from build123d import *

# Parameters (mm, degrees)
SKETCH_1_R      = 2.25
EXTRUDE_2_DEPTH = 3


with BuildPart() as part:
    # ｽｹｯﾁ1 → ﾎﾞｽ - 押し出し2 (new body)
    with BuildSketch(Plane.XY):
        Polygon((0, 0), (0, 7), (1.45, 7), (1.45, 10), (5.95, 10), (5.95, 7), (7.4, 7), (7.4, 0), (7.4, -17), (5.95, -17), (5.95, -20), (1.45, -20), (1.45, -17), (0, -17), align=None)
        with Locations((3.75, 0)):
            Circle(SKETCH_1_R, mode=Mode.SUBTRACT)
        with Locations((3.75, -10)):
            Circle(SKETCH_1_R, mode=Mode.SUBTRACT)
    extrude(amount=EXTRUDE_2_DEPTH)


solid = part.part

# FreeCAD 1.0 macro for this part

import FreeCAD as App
import Part
import Sketcher

V = App.Vector


def add_polygon(sketch, points):
    """Adds a closed chain of lines whose ends are joined by coincident constraints."""
    first, n = sketch.GeometryCount, len(points)
    for a, b in zip(points, points[1:] + points[:1]):
        sketch.addGeometry(Part.LineSegment(App.Vector(*a, 0), App.Vector(*b, 0)), False)
    for i in range(n):
        sketch.addConstraint(Sketcher.Constraint("Coincident", first + i, 2, first + (i + 1) % n, 1))

doc = App.newDocument("Part")
body = doc.addObject("PartDesign::Body", "Body")

sketch1 = body.newObject("Sketcher::SketchObject", "Sketch")
sketch1.AttachmentSupport = (doc.getObject("XY_Plane"), [""])
sketch1.MapMode = "FlatFace"
add_polygon(sketch1, [(0, 7), (0, -17), (1.45, -17), (1.45, -20), (5.95, -20), (5.95, -17), (7.4, -17), (7.4, 7), (5.95, 7), (5.95, 10), (1.45, 10), (1.45, 7)])
sketch1.addGeometry(Part.Circle(V(3.75, -10, 0), V(0, 0, 1), 2.25), False)
sketch1.addGeometry(Part.Circle(V(3.75, 0, 0), V(0, 0, 1), 2.25), False)
sketch1.addConstraint([
    Sketcher.Constraint("Vertical", 0),
    Sketcher.Constraint("Horizontal", 1),
    Sketcher.Constraint("Vertical", 2),
    Sketcher.Constraint("Horizontal", 3),
    Sketcher.Constraint("Vertical", 4),
    Sketcher.Constraint("Horizontal", 5),
    Sketcher.Constraint("Vertical", 6),
    Sketcher.Constraint("Horizontal", 7),
    Sketcher.Constraint("Vertical", 8),
    Sketcher.Constraint("Horizontal", 9),
    Sketcher.Constraint("Vertical", 10),
    Sketcher.Constraint("Horizontal", 11),
    Sketcher.Constraint("Equal", 12, 13),
    Sketcher.Constraint("PointOnObject", 13, 3, -1),
    Sketcher.Constraint("PointOnObject", 0, 2, -2),
    Sketcher.Constraint("Horizontal", 1, 2, 4, 2),
    Sketcher.Constraint("Horizontal", 7, 2, 10, 2),
    Sketcher.Constraint("Vertical", 12, 3, 13, 3),
    Sketcher.Constraint("Vertical", 4, 2, 7, 2),
    Sketcher.Constraint("Vertical", 2, 2, 9, 2),
    Sketcher.Constraint("Equal", 1, 5),
    Sketcher.Constraint("Equal", 4, 8),
    Sketcher.Constraint("Diameter", 12, 4.5),
    Sketcher.Constraint("DistanceY", 0, 2, 0, 1, 24.0),
    Sketcher.Constraint("DistanceY", 2, 2, 2, 1, 3.0),
    Sketcher.Constraint("DistanceX", 3, 1, 3, 2, 4.5),
    Sketcher.Constraint("DistanceY", 12, 3, -1, 1, 10.0),
    Sketcher.Constraint("DistanceY", 0, 2, -1, 1, 17.0),
    Sketcher.Constraint("DistanceX", 1, 1, 1, 2, 1.45),
    Sketcher.Constraint("DistanceX", 1, 2, 12, 3, 2.3),
])
pad1 = body.newObject("PartDesign::Pad", "Pad")
pad1.Profile = sketch1
pad1.Length = 3

doc.recompute()
